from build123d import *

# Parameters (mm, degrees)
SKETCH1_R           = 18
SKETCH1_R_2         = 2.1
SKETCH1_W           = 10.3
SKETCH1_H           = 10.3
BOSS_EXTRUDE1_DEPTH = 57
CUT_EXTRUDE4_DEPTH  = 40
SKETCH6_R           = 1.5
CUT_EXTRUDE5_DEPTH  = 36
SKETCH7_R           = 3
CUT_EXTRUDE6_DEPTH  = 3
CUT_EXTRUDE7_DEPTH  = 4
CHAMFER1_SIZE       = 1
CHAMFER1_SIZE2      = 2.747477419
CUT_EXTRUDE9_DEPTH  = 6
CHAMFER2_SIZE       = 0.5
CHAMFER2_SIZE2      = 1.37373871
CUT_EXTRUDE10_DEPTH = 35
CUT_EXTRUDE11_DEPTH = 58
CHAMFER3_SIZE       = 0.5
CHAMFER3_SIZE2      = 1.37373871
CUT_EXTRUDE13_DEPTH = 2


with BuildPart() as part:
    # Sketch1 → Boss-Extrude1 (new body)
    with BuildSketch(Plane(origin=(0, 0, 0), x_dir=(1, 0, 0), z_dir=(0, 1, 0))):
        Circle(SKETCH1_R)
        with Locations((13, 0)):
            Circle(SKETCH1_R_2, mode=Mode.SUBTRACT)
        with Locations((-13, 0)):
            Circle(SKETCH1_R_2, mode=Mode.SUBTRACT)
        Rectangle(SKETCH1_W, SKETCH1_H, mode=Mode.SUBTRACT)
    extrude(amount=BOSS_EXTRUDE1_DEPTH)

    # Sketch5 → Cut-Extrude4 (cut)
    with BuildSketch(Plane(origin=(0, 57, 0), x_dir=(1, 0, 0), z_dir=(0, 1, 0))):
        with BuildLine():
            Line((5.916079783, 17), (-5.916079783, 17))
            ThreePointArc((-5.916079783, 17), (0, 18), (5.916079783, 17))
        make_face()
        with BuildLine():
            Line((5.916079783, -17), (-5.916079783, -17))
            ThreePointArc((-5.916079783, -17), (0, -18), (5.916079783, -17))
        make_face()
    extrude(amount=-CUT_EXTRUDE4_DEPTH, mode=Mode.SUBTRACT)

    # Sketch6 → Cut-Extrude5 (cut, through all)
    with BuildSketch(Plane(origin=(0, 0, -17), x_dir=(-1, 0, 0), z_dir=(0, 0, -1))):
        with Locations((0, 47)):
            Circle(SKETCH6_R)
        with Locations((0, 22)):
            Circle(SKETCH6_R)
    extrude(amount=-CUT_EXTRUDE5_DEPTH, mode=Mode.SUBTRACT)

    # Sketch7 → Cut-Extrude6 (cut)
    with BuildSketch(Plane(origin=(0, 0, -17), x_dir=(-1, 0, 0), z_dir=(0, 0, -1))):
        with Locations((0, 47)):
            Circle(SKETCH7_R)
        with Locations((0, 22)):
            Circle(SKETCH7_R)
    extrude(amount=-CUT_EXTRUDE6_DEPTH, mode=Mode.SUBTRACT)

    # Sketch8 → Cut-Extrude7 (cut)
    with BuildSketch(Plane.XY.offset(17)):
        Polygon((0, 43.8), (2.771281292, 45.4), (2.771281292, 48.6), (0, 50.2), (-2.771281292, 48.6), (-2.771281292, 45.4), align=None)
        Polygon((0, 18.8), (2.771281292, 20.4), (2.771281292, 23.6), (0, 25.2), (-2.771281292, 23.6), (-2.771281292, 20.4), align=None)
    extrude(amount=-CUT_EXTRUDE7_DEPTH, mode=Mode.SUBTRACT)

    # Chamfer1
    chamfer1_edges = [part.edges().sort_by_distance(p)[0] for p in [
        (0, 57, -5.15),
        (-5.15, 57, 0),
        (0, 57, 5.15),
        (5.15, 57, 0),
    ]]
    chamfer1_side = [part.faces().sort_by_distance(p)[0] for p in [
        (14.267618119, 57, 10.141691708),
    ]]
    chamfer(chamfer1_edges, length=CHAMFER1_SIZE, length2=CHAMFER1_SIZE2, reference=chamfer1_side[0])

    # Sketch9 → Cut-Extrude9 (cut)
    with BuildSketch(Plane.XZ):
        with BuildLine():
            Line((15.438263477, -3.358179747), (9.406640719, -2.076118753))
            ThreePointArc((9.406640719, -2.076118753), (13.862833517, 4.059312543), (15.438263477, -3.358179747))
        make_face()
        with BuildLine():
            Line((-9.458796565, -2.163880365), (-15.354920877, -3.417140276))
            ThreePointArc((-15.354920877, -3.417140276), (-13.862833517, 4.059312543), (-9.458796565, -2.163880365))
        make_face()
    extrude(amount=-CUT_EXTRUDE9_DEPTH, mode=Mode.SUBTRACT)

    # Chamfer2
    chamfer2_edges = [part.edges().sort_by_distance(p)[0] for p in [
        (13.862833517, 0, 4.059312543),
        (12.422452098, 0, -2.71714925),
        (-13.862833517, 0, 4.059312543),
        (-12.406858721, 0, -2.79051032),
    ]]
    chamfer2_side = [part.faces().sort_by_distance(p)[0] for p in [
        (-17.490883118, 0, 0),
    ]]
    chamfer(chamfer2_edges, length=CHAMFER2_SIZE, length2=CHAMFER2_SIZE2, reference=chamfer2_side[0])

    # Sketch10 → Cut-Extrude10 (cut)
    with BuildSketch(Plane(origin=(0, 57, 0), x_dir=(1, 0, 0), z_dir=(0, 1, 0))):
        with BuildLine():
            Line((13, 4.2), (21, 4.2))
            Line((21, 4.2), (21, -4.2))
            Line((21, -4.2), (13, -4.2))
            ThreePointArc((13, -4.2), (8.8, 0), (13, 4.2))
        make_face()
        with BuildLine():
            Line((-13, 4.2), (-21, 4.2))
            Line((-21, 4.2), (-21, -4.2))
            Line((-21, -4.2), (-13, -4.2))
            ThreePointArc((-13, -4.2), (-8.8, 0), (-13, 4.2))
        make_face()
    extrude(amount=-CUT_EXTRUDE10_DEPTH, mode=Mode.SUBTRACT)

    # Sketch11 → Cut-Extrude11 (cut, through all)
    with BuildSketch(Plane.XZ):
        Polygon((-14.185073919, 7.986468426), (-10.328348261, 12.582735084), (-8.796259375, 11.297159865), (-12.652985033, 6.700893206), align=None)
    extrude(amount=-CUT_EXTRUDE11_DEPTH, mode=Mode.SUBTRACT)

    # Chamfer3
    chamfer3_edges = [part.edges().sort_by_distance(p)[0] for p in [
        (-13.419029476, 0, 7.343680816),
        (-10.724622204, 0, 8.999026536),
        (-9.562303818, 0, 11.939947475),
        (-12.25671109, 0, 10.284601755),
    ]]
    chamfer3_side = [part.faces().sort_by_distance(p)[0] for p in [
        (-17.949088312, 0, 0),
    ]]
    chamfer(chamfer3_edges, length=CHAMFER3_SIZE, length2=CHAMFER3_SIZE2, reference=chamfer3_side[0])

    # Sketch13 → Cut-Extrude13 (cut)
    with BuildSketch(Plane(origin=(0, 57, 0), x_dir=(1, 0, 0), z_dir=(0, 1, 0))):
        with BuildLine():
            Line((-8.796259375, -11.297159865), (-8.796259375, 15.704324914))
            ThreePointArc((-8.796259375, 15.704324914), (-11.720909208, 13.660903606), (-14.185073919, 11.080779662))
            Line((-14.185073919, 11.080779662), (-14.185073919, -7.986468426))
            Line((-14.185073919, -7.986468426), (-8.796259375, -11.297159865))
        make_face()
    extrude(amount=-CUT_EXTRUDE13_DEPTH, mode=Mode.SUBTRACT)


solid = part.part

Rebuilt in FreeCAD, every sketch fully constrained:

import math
import FreeCAD as App
import Part
import Sketcher
Q = App.Units.Quantity


def edges_at(feature, points):
    """Names of the edges that pass closest to the given points."""
    edges = feature.Shape.Edges
    near = lambda p: min(range(len(edges)), key=lambda i: edges[i].distToShape(Part.Vertex(*p))[0])
    return sorted({f"Edge{near(p) + 1}" for p in points})

doc = App.newDocument("Part")
body = doc.addObject("PartDesign::Body", "Body")

# Sketch on XZ plane
sketch1 = doc.addObject("Sketcher::SketchObject", "Sketch")
body.addObject(sketch1)
sketch1.AttachmentSupport = (doc.XZ_Plane, [""])
sketch1.MapMode = "FlatFace"
sketch1.addGeometry(Part.Circle(App.Vector(0, 0, 0), App.Vector(0, 0, 1), 18), False)
sketch1.addGeometry(Part.Circle(App.Vector(-13, 0, 0), App.Vector(0, 0, 1), 2.1), False)
sketch1.addGeometry(Part.LineSegment(App.Vector(5.15, 5.15, 0), App.Vector(-5.15, 5.15, 0)), False)
sketch1.addGeometry(Part.LineSegment(App.Vector(-5.15, 5.15, 0), App.Vector(-5.15, -5.15, 0)), False)
sketch1.addGeometry(Part.LineSegment(App.Vector(-5.15, -5.15, 0), App.Vector(5.15, -5.15, 0)), False)
sketch1.addGeometry(Part.LineSegment(App.Vector(5.15, -5.15, 0), App.Vector(5.15, 5.15, 0)), False)
sketch1.addGeometry(Part.Circle(App.Vector(13, 0, 0), App.Vector(0, 0, 1), 2.1), False)
sketch1.addConstraint(Sketcher.Constraint("Coincident", 2, 2, 3, 1))
sketch1.addConstraint(Sketcher.Constraint("Coincident", 3, 2, 4, 1))
sketch1.addConstraint(Sketcher.Constraint("Coincident", 4, 2, 5, 1))
sketch1.addConstraint(Sketcher.Constraint("Coincident", 5, 2, 2, 1))
sketch1.addConstraint(Sketcher.Constraint("Horizontal", 2))
sketch1.addConstraint(Sketcher.Constraint("Vertical", 3))
sketch1.addConstraint(Sketcher.Constraint("Horizontal", 4))
sketch1.addConstraint(Sketcher.Constraint("Vertical", 5))
sketch1.addConstraint(Sketcher.Constraint("Coincident", 0, 3, -1, 1))
sketch1.addConstraint(Sketcher.Constraint("Equal", 1, 6))
sketch1.addConstraint(Sketcher.Constraint("Symmetric", 1, 3, 6, 3, -1, 1))
sketch1.addConstraint(Sketcher.Constraint("Symmetric", 2, 2, 4, 2, -1, 1))
sketch1.addConstraint(Sketcher.Constraint("PointOnObject", 1, 3, -1))
sketch1.addConstraint(Sketcher.Constraint("Equal", 4, 3))
sketch1.addConstraint(Sketcher.Constraint("Diameter", 0, Q("36 mm")))
sketch1.addConstraint(Sketcher.Constraint("Diameter", 1, Q("4.2 mm")))
sketch1.addConstraint(Sketcher.Constraint("DistanceX", 2, 2, 2, 1, Q("10.3 mm")))
sketch1.addConstraint(Sketcher.Constraint("DistanceX", 1, 3, -1, 1, Q("13 mm")))
pad1 = doc.addObject("PartDesign::Pad", "Pad")
body.addObject(pad1)
pad1.Profile = sketch1
pad1.Length = 57
pad1.Reversed = True

# Sketch on XZ plane
sketch2 = doc.addObject("Sketcher::SketchObject", "Sketch001")
body.addObject(sketch2)
sketch2.AttachmentSupport = (doc.XZ_Plane, [""])
sketch2.MapMode = "FlatFace"
sketch2.AttachmentOffset = App.Placement(App.Vector(0, 0, -57), App.Rotation())
sketch2.addGeometry(Part.LineSegment(App.Vector(-5.91608, -17, 0), App.Vector(5.91608, -17, 0)), False)
sketch2.addGeometry(Part.ArcOfCircle(Part.Circle(App.Vector(0, 0, 0), App.Vector(0, 0, 1), 18), math.radians(-109.188136), math.radians(-70.811864)), False)
sketch2.addGeometry(Part.LineSegment(App.Vector(5.91608, 17, 0), App.Vector(-5.91608, 17, 0)), False)
sketch2.addGeometry(Part.ArcOfCircle(Part.Circle(App.Vector(0, 0, 0), App.Vector(0, 0, 1), 18), math.radians(70.811864), math.radians(109.188136)), False)
sketch2.addConstraint(Sketcher.Constraint("Coincident", 0, 1, 1, 1))
sketch2.addConstraint(Sketcher.Constraint("Coincident", 1, 2, 0, 2))
sketch2.addConstraint(Sketcher.Constraint("Coincident", 2, 1, 3, 1))
sketch2.addConstraint(Sketcher.Constraint("Coincident", 3, 2, 2, 2))
sketch2.addConstraint(Sketcher.Constraint("Horizontal", 0))
sketch2.addConstraint(Sketcher.Constraint("Horizontal", 2))
sketch2.addConstraint(Sketcher.Constraint("Coincident", 1, 3, -1, 1))
sketch2.addConstraint(Sketcher.Constraint("Coincident", 3, 3, -1, 1))
sketch2.addConstraint(Sketcher.Constraint("Equal", 1, 3))
sketch2.addConstraint(Sketcher.Constraint("Vertical", 1, 2, 2, 1))
sketch2.addConstraint(Sketcher.Constraint("Radius", 1, Q("18 mm")))
sketch2.addConstraint(Sketcher.Constraint("DistanceY", 0, 1, -1, 1, Q("17 mm")))
pocket1 = doc.addObject("PartDesign::Pocket", "Pocket")
body.addObject(pocket1)
pocket1.Profile = sketch2
pocket1.Length = 40
pocket1.Reversed = True

# Sketch on XY plane
sketch3 = doc.addObject("Sketcher::SketchObject", "Sketch002")
body.addObject(sketch3)
sketch3.AttachmentSupport = (doc.XY_Plane, [""])
sketch3.MapMode = "FlatFace"
sketch3.AttachmentOffset = App.Placement(App.Vector(0, 0, -17), App.Rotation())
sketch3.addGeometry(Part.Circle(App.Vector(0, 47, 0), App.Vector(0, 0, 1), 1.5), False)
sketch3.addGeometry(Part.Circle(App.Vector(0, 22, 0), App.Vector(0, 0, 1), 1.5), False)
sketch3.addConstraint(Sketcher.Constraint("Equal", 0, 1))
sketch3.addConstraint(Sketcher.Constraint("PointOnObject", 0, 3, -2))
sketch3.addConstraint(Sketcher.Constraint("PointOnObject", 1, 3, -2))
sketch3.addConstraint(Sketcher.Constraint("Diameter", 0, Q("3 mm")))
sketch3.addConstraint(Sketcher.Constraint("DistanceY", -1, 1, 0, 3, Q("47 mm")))
sketch3.addConstraint(Sketcher.Constraint("DistanceY", -1, 1, 1, 3, Q("22 mm")))
pocket2 = doc.addObject("PartDesign::Pocket", "Pocket001")
body.addObject(pocket2)
pocket2.Profile = sketch3
pocket2.Type = "ThroughAll"
pocket2.Reversed = True

# Sketch on XY plane
sketch4 = doc.addObject("Sketcher::SketchObject", "Sketch003")
body.addObject(sketch4)
sketch4.AttachmentSupport = (doc.XY_Plane, [""])
sketch4.MapMode = "FlatFace"
sketch4.AttachmentOffset = App.Placement(App.Vector(0, 0, -17), App.Rotation())
sketch4.addGeometry(Part.Circle(App.Vector(0, 47, 0), App.Vector(0, 0, 1), 3), False)
sketch4.addGeometry(Part.Circle(App.Vector(0, 22, 0), App.Vector(0, 0, 1), 3), False)
sketch4.addConstraint(Sketcher.Constraint("Equal", 0, 1))
sketch4.addConstraint(Sketcher.Constraint("PointOnObject", 0, 3, -2))
sketch4.addConstraint(Sketcher.Constraint("PointOnObject", 1, 3, -2))
sketch4.addConstraint(Sketcher.Constraint("Diameter", 0, Q("6 mm")))
sketch4.addConstraint(Sketcher.Constraint("DistanceY", -1, 1, 0, 3, Q("47 mm")))
sketch4.addConstraint(Sketcher.Constraint("DistanceY", -1, 1, 1, 3, Q("22 mm")))
pocket3 = doc.addObject("PartDesign::Pocket", "Pocket002")
body.addObject(pocket3)
pocket3.Profile = sketch4
pocket3.Length = 3
pocket3.Reversed = True

# Sketch on XY plane
sketch5 = doc.addObject("Sketcher::SketchObject", "Sketch004")
body.addObject(sketch5)
sketch5.AttachmentSupport = (doc.XY_Plane, [""])
sketch5.MapMode = "FlatFace"
sketch5.AttachmentOffset = App.Placement(App.Vector(0, 0, 17), App.Rotation())
sketch5.addGeometry(Part.LineSegment(App.Vector(0, 43.8, 0), App.Vector(2.771281, 45.4, 0)), False)
sketch5.addGeometry(Part.LineSegment(App.Vector(2.771281, 45.4, 0), App.Vector(2.771281, 48.6, 0)), False)
sketch5.addGeometry(Part.LineSegment(App.Vector(2.771281, 48.6, 0), App.Vector(0, 50.2, 0)), False)
sketch5.addGeometry(Part.LineSegment(App.Vector(0, 50.2, 0), App.Vector(-2.771281, 48.6, 0)), False)
sketch5.addGeometry(Part.LineSegment(App.Vector(-2.771281, 48.6, 0), App.Vector(-2.771281, 45.4, 0)), False)
sketch5.addGeometry(Part.LineSegment(App.Vector(-2.771281, 45.4, 0), App.Vector(0, 43.8, 0)), False)
sketch5.addGeometry(Part.LineSegment(App.Vector(0, 18.8, 0), App.Vector(2.771281, 20.4, 0)), False)
sketch5.addGeometry(Part.LineSegment(App.Vector(2.771281, 20.4, 0), App.Vector(2.771281, 23.6, 0)), False)
sketch5.addGeometry(Part.LineSegment(App.Vector(2.771281, 23.6, 0), App.Vector(0, 25.2, 0)), False)
sketch5.addGeometry(Part.LineSegment(App.Vector(0, 25.2, 0), App.Vector(-2.771281, 23.6, 0)), False)
sketch5.addGeometry(Part.LineSegment(App.Vector(-2.771281, 23.6, 0), App.Vector(-2.771281, 20.4, 0)), False)
sketch5.addGeometry(Part.LineSegment(App.Vector(-2.771281, 20.4, 0), App.Vector(0, 18.8, 0)), False)
sketch5.addConstraint(Sketcher.Constraint("Coincident", 0, 2, 1, 1))
sketch5.addConstraint(Sketcher.Constraint("Coincident", 1, 2, 2, 1))
sketch5.addConstraint(Sketcher.Constraint("Coincident", 2, 2, 3, 1))
sketch5.addConstraint(Sketcher.Constraint("Coincident", 3, 2, 4, 1))
sketch5.addConstraint(Sketcher.Constraint("Coincident", 4, 2, 5, 1))
sketch5.addConstraint(Sketcher.Constraint("Coincident", 5, 2, 0, 1))
sketch5.addConstraint(Sketcher.Constraint("Coincident", 6, 2, 7, 1))
sketch5.addConstraint(Sketcher.Constraint("Coincident", 7, 2, 8, 1))
sketch5.addConstraint(Sketcher.Constraint("Coincident", 8, 2, 9, 1))
sketch5.addConstraint(Sketcher.Constraint("Coincident", 9, 2, 10, 1))
sketch5.addConstraint(Sketcher.Constraint("Coincident", 10, 2, 11, 1))
sketch5.addConstraint(Sketcher.Constraint("Coincident", 11, 2, 6, 1))
sketch5.addConstraint(Sketcher.Constraint("Vertical", 1))
sketch5.addConstraint(Sketcher.Constraint("Vertical", 4))
sketch5.addConstraint(Sketcher.Constraint("Vertical", 7))
sketch5.addConstraint(Sketcher.Constraint("Vertical", 10))
sketch5.addConstraint(Sketcher.Constraint("Symmetric", 1, 2, 3, 2, -2))
sketch5.addConstraint(Sketcher.Constraint("Symmetric", 7, 2, 9, 2, -2))
sketch5.addConstraint(Sketcher.Constraint("PointOnObject", 2, 2, -2))
sketch5.addConstraint(Sketcher.Constraint("PointOnObject", 5, 2, -2))
sketch5.addConstraint(Sketcher.Constraint("PointOnObject", 8, 2, -2))
sketch5.addConstraint(Sketcher.Constraint("PointOnObject", 11, 2, -2))
sketch5.addConstraint(Sketcher.Constraint("Parallel", 0, 3))
sketch5.addConstraint(Sketcher.Constraint("Parallel", 2, 5))
sketch5.addConstraint(Sketcher.Constraint("Parallel", 3, 6))
sketch5.addConstraint(Sketcher.Constraint("Parallel", 5, 8))
sketch5.addConstraint(Sketcher.Constraint("Parallel", 8, 11))
sketch5.addConstraint(Sketcher.Constraint("Vertical", 1, 2, 6, 2))
sketch5.addConstraint(Sketcher.Constraint("Equal", 4, 7))
sketch5.addConstraint(Sketcher.Constraint("Angle", 0, Q("30 deg")))
sketch5.addConstraint(Sketcher.Constraint("DistanceY", 1, 1, 1, 2, Q("3.2 mm")))
sketch5.addConstraint(Sketcher.Constraint("DistanceY", 6, 2, 0, 2, Q("25 mm")))
sketch5.addConstraint(Sketcher.Constraint("Distance", 0, Q("3.2 mm")))
sketch5.addConstraint(Sketcher.Constraint("DistanceY", -1, 1, 0, 2, Q("45.4 mm")))
pocket4 = doc.addObject("PartDesign::Pocket", "Pocket003")
body.addObject(pocket4)
pocket4.Profile = sketch5
pocket4.Length = 4
doc.recompute()

chamfer = doc.addObject("PartDesign::Chamfer", "Chamfer")
body.addObject(chamfer)
chamfer.Base = (pocket4, edges_at(pocket4, [
    (0, 57, -5.15),
    (-5.15, 57, 0),
    (0, 57, 5.15),
    (5.15, 57, 0),
]))
chamfer.ChamferType = "Two distances"
chamfer.Size = 1
chamfer.Size2 = 2.747477

# Sketch on XZ plane
sketch6 = doc.addObject("Sketcher::SketchObject", "Sketch005")
body.addObject(sketch6)
sketch6.AttachmentSupport = (doc.XZ_Plane, [""])
sketch6.MapMode = "FlatFace"
sketch6.addGeometry(Part.LineSegment(App.Vector(9.406641, -2.076119, 0), App.Vector(15.438263, -3.35818, 0)), False)
sketch6.addGeometry(Part.ArcOfCircle(Part.Circle(App.Vector(13, 0, 0), App.Vector(0, 0, 1), 4.15), math.radians(-54.017837), math.radians(210.017837)), False)
sketch6.addGeometry(Part.LineSegment(App.Vector(-15.354921, -3.41714, 0), App.Vector(-9.458797, -2.16388, 0)), False)
sketch6.addGeometry(Part.ArcOfCircle(Part.Circle(App.Vector(-13, 0, 0), App.Vector(0, 0, 1), 4.15), math.radians(-31.427346), math.radians(235.427346)), False)
sketch6.addConstraint(Sketcher.Constraint("Coincident", 0, 1, 1, 2))
sketch6.addConstraint(Sketcher.Constraint("Coincident", 1, 1, 0, 2))
sketch6.addConstraint(Sketcher.Constraint("Coincident", 2, 1, 3, 2))
sketch6.addConstraint(Sketcher.Constraint("Coincident", 3, 1, 2, 2))
sketch6.addConstraint(Sketcher.Constraint("Equal", 1, 3))
sketch6.addConstraint(Sketcher.Constraint("Symmetric", 1, 3, 3, 3, -1, 1))
sketch6.addConstraint(Sketcher.Constraint("PointOnObject", 1, 3, -1))
sketch6.addConstraint(Sketcher.Constraint("Angle", 0, Q("-12 deg")))
sketch6.addConstraint(Sketcher.Constraint("Angle", 2, Q("12 deg")))
sketch6.addConstraint(Sketcher.Constraint("Radius", 1, Q("4.15 mm")))
sketch6.addConstraint(Sketcher.Constraint("DistanceX", -1, 1, 1, 3, Q("13 mm")))
sketch6.addConstraint(Sketcher.Constraint("DistanceY", 1, 1, 3, 1, Q("1.194299 mm")))
sketch6.addConstraint(Sketcher.Constraint("DistanceX", -1, 1, 0, 1, Q("9.406641 mm")))
pocket5 = doc.addObject("PartDesign::Pocket", "Pocket004")
body.addObject(pocket5)
pocket5.Profile = sketch6
pocket5.Length = 6
doc.recompute()

chamfer2 = doc.addObject("PartDesign::Chamfer", "Chamfer001")
body.addObject(chamfer2)
chamfer2.Base = (pocket5, edges_at(pocket5, [
    (13.863, 0, 4.059),
    (12.422, 0, -2.717),
    (-13.863, 0, 4.059),
    (-12.407, 0, -2.791),
]))
chamfer2.ChamferType = "Two distances"
chamfer2.Size = 0.5
chamfer2.Size2 = 1.373739

# Sketch on XZ plane
sketch7 = doc.addObject("Sketcher::SketchObject", "Sketch006")
body.addObject(sketch7)
sketch7.AttachmentSupport = (doc.XZ_Plane, [""])
sketch7.MapMode = "FlatFace"
sketch7.AttachmentOffset = App.Placement(App.Vector(0, 0, -57), App.Rotation())
sketch7.addGeometry(Part.LineSegment(App.Vector(21, -4.2, 0), App.Vector(13, -4.2, 0)), False)
sketch7.addGeometry(Part.ArcOfCircle(Part.Circle(App.Vector(13, 0, 0), App.Vector(0, 0, 1), 4.2), math.radians(90), math.radians(270)), False)
sketch7.addGeometry(Part.LineSegment(App.Vector(13, 4.2, 0), App.Vector(21, 4.2, 0)), False)
sketch7.addGeometry(Part.LineSegment(App.Vector(21, 4.2, 0), App.Vector(21, -4.2, 0)), False)
sketch7.addGeometry(Part.LineSegment(App.Vector(-13, -4.2, 0), App.Vector(-21, -4.2, 0)), False)
sketch7.addGeometry(Part.LineSegment(App.Vector(-21, -4.2, 0), App.Vector(-21, 4.2, 0)), False)
sketch7.addGeometry(Part.LineSegment(App.Vector(-21, 4.2, 0), App.Vector(-13, 4.2, 0)), False)
sketch7.addGeometry(Part.ArcOfCircle(Part.Circle(App.Vector(-13, 0, 0), App.Vector(0, 0, 1), 4.2), math.radians(-90), math.radians(90)), False)
sketch7.addConstraint(Sketcher.Constraint("Tangent", 0, 2, 1, 2))
sketch7.addConstraint(Sketcher.Constraint("Tangent", 1, 1, 2, 1))
sketch7.addConstraint(Sketcher.Constraint("Coincident", 2, 2, 3, 1))
sketch7.addConstraint(Sketcher.Constraint("Coincident", 3, 2, 0, 1))
sketch7.addConstraint(Sketcher.Constraint("Coincident", 4, 2, 5, 1))
sketch7.addConstraint(Sketcher.Constraint("Coincident", 5, 2, 6, 1))
sketch7.addConstraint(Sketcher.Constraint("Tangent", 6, 2, 7, 2))
sketch7.addConstraint(Sketcher.Constraint("Tangent", 7, 1, 4, 1))
sketch7.addConstraint(Sketcher.Constraint("Horizontal", 0))
sketch7.addConstraint(Sketcher.Constraint("Horizontal", 2))
sketch7.addConstraint(Sketcher.Constraint("Vertical", 3))
sketch7.addConstraint(Sketcher.Constraint("Horizontal", 4))
sketch7.addConstraint(Sketcher.Constraint("Vertical", 5))
sketch7.addConstraint(Sketcher.Constraint("Horizontal", 6))
sketch7.addConstraint(Sketcher.Constraint("Equal", 1, 7))
sketch7.addConstraint(Sketcher.Constraint("Symmetric", 1, 3, 7, 3, -1, 1))
sketch7.addConstraint(Sketcher.Constraint("Symmetric", 3, 2, 4, 2, -2))
sketch7.addConstraint(Sketcher.Constraint("Radius", 1, Q("4.2 mm")))
sketch7.addConstraint(Sketcher.Constraint("DistanceX", 0, 2, 0, 1, Q("8 mm")))
sketch7.addConstraint(Sketcher.Constraint("DistanceX", -1, 1, 1, 3, Q("13 mm")))
pocket6 = doc.addObject("PartDesign::Pocket", "Pocket005")
body.addObject(pocket6)
pocket6.Profile = sketch7
pocket6.Length = 35
pocket6.Reversed = True

# Sketch on XZ plane
sketch8 = doc.addObject("Sketcher::SketchObject", "Sketch007")
body.addObject(sketch8)
sketch8.AttachmentSupport = (doc.XZ_Plane, [""])
sketch8.MapMode = "FlatFace"
sketch8.addGeometry(Part.LineSegment(App.Vector(-10.328348, 12.582735, 0), App.Vector(-14.185074, 7.986468, 0)), False)
sketch8.addGeometry(Part.LineSegment(App.Vector(-14.185074, 7.986468, 0), App.Vector(-12.652985, 6.700893, 0)), False)
sketch8.addGeometry(Part.LineSegment(App.Vector(-12.652985, 6.700893, 0), App.Vector(-8.796259, 11.29716, 0)), False)
sketch8.addGeometry(Part.LineSegment(App.Vector(-8.796259, 11.29716, 0), App.Vector(-10.328348, 12.582735, 0)), False)
sketch8.addConstraint(Sketcher.Constraint("Coincident", 0, 2, 1, 1))
sketch8.addConstraint(Sketcher.Constraint("Coincident", 1, 2, 2, 1))
sketch8.addConstraint(Sketcher.Constraint("Coincident", 2, 2, 3, 1))
sketch8.addConstraint(Sketcher.Constraint("Coincident", 3, 2, 0, 1))
sketch8.addConstraint(Sketcher.Constraint("Perpendicular", 0, 1))
sketch8.addConstraint(Sketcher.Constraint("Perpendicular", 1, 2))
sketch8.addConstraint(Sketcher.Constraint("Perpendicular", 2, 3))
sketch8.addConstraint(Sketcher.Constraint("Angle", 0, Q("-130 deg")))
sketch8.addConstraint(Sketcher.Constraint("Distance", 0, Q("6 mm")))
sketch8.addConstraint(Sketcher.Constraint("Distance", 1, Q("2 mm")))
sketch8.addConstraint(Sketcher.Constraint("DistanceY", -1, 1, 0, 2, Q("7.986468 mm")))
sketch8.addConstraint(Sketcher.Constraint("DistanceX", 2, 2, -1, 1, Q("8.796259 mm")))
pocket7 = doc.addObject("PartDesign::Pocket", "Pocket006")
body.addObject(pocket7)
pocket7.Profile = sketch8
pocket7.Type = "ThroughAll"
doc.recompute()

chamfer3 = doc.addObject("PartDesign::Chamfer", "Chamfer002")
body.addObject(chamfer3)
chamfer3.Base = (pocket7, edges_at(pocket7, [
    (-13.419, 0, 7.344),
    (-10.725, 0, 8.999),
    (-9.562, 0, 11.94),
    (-12.257, 0, 10.285),
]))
chamfer3.ChamferType = "Two distances"
chamfer3.Size = 0.5
chamfer3.Size2 = 1.373739

# Sketch on XZ plane
sketch9 = doc.addObject("Sketcher::SketchObject", "Sketch008")
body.addObject(sketch9)
sketch9.AttachmentSupport = (doc.XZ_Plane, [""])
sketch9.MapMode = "FlatFace"
sketch9.AttachmentOffset = App.Placement(App.Vector(0, 0, -57), App.Rotation())
sketch9.addGeometry(Part.LineSegment(App.Vector(-8.796259, 11.29716, 0), App.Vector(-8.796259, -15.704325, 0)), False)
sketch9.addGeometry(Part.ArcOfCircle(Part.Circle(App.Vector(0, 0, 0), App.Vector(0, 0, 1), 18), math.radians(-142.004552), math.radians(-119.253929)), False)
sketch9.addGeometry(Part.LineSegment(App.Vector(-14.185074, -11.08078, 0), App.Vector(-14.185074, 7.986468, 0)), False)
sketch9.addGeometry(Part.LineSegment(App.Vector(-14.185074, 7.986468, 0), App.Vector(-8.796259, 11.29716, 0)), False)
sketch9.addConstraint(Sketcher.Constraint("Coincident", 0, 2, 1, 2))
sketch9.addConstraint(Sketcher.Constraint("Coincident", 1, 1, 2, 1))
sketch9.addConstraint(Sketcher.Constraint("Coincident", 2, 2, 3, 1))
sketch9.addConstraint(Sketcher.Constraint("Coincident", 3, 2, 0, 1))
sketch9.addConstraint(Sketcher.Constraint("Vertical", 0))
sketch9.addConstraint(Sketcher.Constraint("Vertical", 2))
sketch9.addConstraint(Sketcher.Constraint("Coincident", 1, 3, -1, 1))
sketch9.addConstraint(Sketcher.Constraint("Radius", 1, Q("18 mm")))
sketch9.addConstraint(Sketcher.Constraint("DistanceY", 2, 1, 2, 2, Q("19.067248 mm")))
sketch9.addConstraint(Sketcher.Constraint("DistanceY", 0, 2, 0, 1, Q("27.001485 mm")))
sketch9.addConstraint(Sketcher.Constraint("DistanceX", 0, 2, -1, 1, Q("8.796259 mm")))
sketch9.addConstraint(Sketcher.Constraint("DistanceY", 1, 1, -1, 1, Q("11.08078 mm")))
pocket8 = doc.addObject("PartDesign::Pocket", "Pocket007")
body.addObject(pocket8)
pocket8.Profile = sketch9
pocket8.Length = 2
pocket8.Reversed = True

doc.recompute()
